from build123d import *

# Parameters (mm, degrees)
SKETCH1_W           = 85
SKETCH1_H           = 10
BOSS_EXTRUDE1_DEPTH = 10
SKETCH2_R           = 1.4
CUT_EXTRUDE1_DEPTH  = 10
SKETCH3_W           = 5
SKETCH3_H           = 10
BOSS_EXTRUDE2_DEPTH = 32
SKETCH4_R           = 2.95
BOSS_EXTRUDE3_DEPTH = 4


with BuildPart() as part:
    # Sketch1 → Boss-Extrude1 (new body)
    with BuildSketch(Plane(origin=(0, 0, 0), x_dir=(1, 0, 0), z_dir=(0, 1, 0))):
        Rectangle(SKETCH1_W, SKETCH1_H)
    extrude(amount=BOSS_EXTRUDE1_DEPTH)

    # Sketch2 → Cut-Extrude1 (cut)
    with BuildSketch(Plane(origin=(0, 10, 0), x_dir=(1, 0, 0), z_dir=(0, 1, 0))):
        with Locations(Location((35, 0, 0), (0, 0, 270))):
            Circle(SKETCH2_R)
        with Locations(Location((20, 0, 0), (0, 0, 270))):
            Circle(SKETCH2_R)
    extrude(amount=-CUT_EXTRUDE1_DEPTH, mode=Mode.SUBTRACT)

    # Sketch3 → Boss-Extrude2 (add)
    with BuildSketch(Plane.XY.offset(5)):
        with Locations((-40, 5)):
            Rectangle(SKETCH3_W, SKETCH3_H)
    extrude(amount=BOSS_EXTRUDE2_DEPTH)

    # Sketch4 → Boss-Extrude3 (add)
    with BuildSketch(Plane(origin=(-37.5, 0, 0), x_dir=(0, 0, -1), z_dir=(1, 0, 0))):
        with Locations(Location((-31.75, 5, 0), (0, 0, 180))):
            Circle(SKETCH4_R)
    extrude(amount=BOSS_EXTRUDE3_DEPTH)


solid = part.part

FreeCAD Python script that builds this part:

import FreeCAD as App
import Part
import Sketcher


def add_polygon(sketch, points):
    """Adds a closed chain of lines whose ends are joined by coincident constraints."""
    first, n = sketch.GeometryCount, len(points)
    for a, b in zip(points, points[1:] + points[:1]):
        sketch.addGeometry(Part.LineSegment(App.Vector(*a, 0), App.Vector(*b, 0)), False)
    for i in range(n):
        sketch.addConstraint(Sketcher.Constraint("Coincident", first + i, 2, first + (i + 1) % n, 1))

doc = App.newDocument("Part")
params = doc.addObject("Spreadsheet::Sheet", "Params")
for row, (alias, value) in enumerate([
    ("sketch1_width", "85 mm"),
    ("sketch1_height", "10 mm"),
    ("pad1_length", "10 mm"),
    ("sketch2_diameter", "2.8 mm"),
    ("pocket1_length", "10 mm"),
    ("sketch3_width", "5 mm"),
    ("sketch3_height", "10 mm"),
    ("pad2_length", "32 mm"),
    ("sketch4_diameter", "5.9 mm"),
    ("pad3_length", "4 mm"),
], start=1):
    params.set(f"A{row}", alias)
    params.set(f"B{row}", "=" + value)
    params.setAlias(f"B{row}", alias)

body = doc.addObject("PartDesign::Body", "Body")

# Sketch on XZ plane
sketch1 = body.newObject("Sketcher::SketchObject", "Sketch")
sketch1.AttachmentSupport = (doc.getObject("XZ_Plane"), [""])
sketch1.MapMode = "FlatFace"
add_polygon(sketch1, [(-42, -5), (-42, 5), (42, 5), (42, -5)])  # lines 0-3
sketch1.addConstraint(Sketcher.Constraint("Vertical", 0))
sketch1.addConstraint(Sketcher.Constraint("Horizontal", 1))
sketch1.addConstraint(Sketcher.Constraint("Vertical", 2))
sketch1.addConstraint(Sketcher.Constraint("Horizontal", 3))
sketch1.addConstraint(Sketcher.Constraint("Symmetric", 0, 2, 2, 2, -1, 1))
sketch1.addConstraint(Sketcher.Constraint("DistanceX", 1, 1, 1, 2, 85.0))
sketch1.addConstraint(Sketcher.Constraint("DistanceY", 0, 1, 0, 2, 10.0))
sketch1.setExpression("Constraints[9]", "Params.sketch1_width")
sketch1.setExpression("Constraints[10]", "Params.sketch1_height")
pad1 = body.newObject("PartDesign::Pad", "Pad")
pad1.Profile = sketch1
pad1.setExpression("Length", "Params.pad1_length")
pad1.Reversed = True

# Sketch on XZ plane
sketch2 = body.newObject("Sketcher::SketchObject", "Sketch001")
sketch2.AttachmentSupport = (doc.getObject("XZ_Plane"), [""])
sketch2.MapMode = "FlatFace"
sketch2.AttachmentOffset = App.Placement(App.Vector(0, 0, -10), App.Rotation())
sketch2.addGeometry(Part.Circle(App.Vector(35, 0, 0), App.Vector(0, 0, 1), 1.4), False)
sketch2.addGeometry(Part.Circle(App.Vector(20, 0, 0), App.Vector(0, 0, 1), 1.4), False)
sketch2.addConstraint(Sketcher.Constraint("Equal", 0, 1))
sketch2.addConstraint(Sketcher.Constraint("PointOnObject", 0, 3, -1))
sketch2.addConstraint(Sketcher.Constraint("PointOnObject", 1, 3, -1))
sketch2.addConstraint(Sketcher.Constraint("Diameter", 0, 2.8))
sketch2.addConstraint(Sketcher.Constraint("DistanceX", -1, 1, 0, 3, 35.0))
sketch2.addConstraint(Sketcher.Constraint("DistanceX", -1, 1, 1, 3, 20.0))
sketch2.setExpression("Constraints[3]", "Params.sketch2_diameter")
pocket1 = body.newObject("PartDesign::Pocket", "Pocket")
pocket1.Profile = sketch2
pocket1.setExpression("Length", "Params.pocket1_length")
pocket1.Reversed = True

# Sketch on XY plane
sketch3 = body.newObject("Sketcher::SketchObject", "Sketch002")
sketch3.AttachmentSupport = (doc.getObject("XY_Plane"), [""])
sketch3.MapMode = "FlatFace"
sketch3.AttachmentOffset = App.Placement(App.Vector(0, 0, 5), App.Rotation())
add_polygon(sketch3, [(-42, 10), (-42, 0), (-38, 0), (-38, 10)])  # lines 0-3
sketch3.addConstraint(Sketcher.Constraint("Vertical", 0))
sketch3.addConstraint(Sketcher.Constraint("Horizontal", 1))
sketch3.addConstraint(Sketcher.Constraint("Vertical", 2))
sketch3.addConstraint(Sketcher.Constraint("Horizontal", 3))
sketch3.addConstraint(Sketcher.Constraint("PointOnObject", 0, 2, -1))
sketch3.addConstraint(Sketcher.Constraint("DistanceX", 1, 1, 1, 2, 5.0))
sketch3.addConstraint(Sketcher.Constraint("DistanceY", 0, 2, 0, 1, 10.0))
sketch3.addConstraint(Sketcher.Constraint("DistanceX", 0, 2, -1, 1, 42.5))
sketch3.setExpression("Constraints[9]", "Params.sketch3_width")
sketch3.setExpression("Constraints[10]", "Params.sketch3_height")
pad2 = body.newObject("PartDesign::Pad", "Pad001")
pad2.Profile = sketch3
pad2.setExpression("Length", "Params.pad2_length")

# Sketch on YZ plane
sketch4 = body.newObject("Sketcher::SketchObject", "Sketch003")
sketch4.AttachmentSupport = (doc.getObject("YZ_Plane"), [""])
sketch4.MapMode = "FlatFace"
sketch4.AttachmentOffset = App.Placement(App.Vector(0, 0, -37.5), App.Rotation())
sketch4.addGeometry(Part.Circle(App.Vector(5, 31.8, 0), App.Vector(0, 0, 1), 3), False)
sketch4.addConstraint(Sketcher.Constraint("Diameter", 0, 5.9))
sketch4.addConstraint(Sketcher.Constraint("DistanceX", -1, 1, 0, 3, 5.0))
sketch4.addConstraint(Sketcher.Constraint("DistanceY", -1, 1, 0, 3, 31.75))
sketch4.setExpression("Constraints[0]", "Params.sketch4_diameter")
pad3 = body.newObject("PartDesign::Pad", "Pad002")
pad3.Profile = sketch4
pad3.setExpression("Length", "Params.pad3_length")

doc.recompute()
